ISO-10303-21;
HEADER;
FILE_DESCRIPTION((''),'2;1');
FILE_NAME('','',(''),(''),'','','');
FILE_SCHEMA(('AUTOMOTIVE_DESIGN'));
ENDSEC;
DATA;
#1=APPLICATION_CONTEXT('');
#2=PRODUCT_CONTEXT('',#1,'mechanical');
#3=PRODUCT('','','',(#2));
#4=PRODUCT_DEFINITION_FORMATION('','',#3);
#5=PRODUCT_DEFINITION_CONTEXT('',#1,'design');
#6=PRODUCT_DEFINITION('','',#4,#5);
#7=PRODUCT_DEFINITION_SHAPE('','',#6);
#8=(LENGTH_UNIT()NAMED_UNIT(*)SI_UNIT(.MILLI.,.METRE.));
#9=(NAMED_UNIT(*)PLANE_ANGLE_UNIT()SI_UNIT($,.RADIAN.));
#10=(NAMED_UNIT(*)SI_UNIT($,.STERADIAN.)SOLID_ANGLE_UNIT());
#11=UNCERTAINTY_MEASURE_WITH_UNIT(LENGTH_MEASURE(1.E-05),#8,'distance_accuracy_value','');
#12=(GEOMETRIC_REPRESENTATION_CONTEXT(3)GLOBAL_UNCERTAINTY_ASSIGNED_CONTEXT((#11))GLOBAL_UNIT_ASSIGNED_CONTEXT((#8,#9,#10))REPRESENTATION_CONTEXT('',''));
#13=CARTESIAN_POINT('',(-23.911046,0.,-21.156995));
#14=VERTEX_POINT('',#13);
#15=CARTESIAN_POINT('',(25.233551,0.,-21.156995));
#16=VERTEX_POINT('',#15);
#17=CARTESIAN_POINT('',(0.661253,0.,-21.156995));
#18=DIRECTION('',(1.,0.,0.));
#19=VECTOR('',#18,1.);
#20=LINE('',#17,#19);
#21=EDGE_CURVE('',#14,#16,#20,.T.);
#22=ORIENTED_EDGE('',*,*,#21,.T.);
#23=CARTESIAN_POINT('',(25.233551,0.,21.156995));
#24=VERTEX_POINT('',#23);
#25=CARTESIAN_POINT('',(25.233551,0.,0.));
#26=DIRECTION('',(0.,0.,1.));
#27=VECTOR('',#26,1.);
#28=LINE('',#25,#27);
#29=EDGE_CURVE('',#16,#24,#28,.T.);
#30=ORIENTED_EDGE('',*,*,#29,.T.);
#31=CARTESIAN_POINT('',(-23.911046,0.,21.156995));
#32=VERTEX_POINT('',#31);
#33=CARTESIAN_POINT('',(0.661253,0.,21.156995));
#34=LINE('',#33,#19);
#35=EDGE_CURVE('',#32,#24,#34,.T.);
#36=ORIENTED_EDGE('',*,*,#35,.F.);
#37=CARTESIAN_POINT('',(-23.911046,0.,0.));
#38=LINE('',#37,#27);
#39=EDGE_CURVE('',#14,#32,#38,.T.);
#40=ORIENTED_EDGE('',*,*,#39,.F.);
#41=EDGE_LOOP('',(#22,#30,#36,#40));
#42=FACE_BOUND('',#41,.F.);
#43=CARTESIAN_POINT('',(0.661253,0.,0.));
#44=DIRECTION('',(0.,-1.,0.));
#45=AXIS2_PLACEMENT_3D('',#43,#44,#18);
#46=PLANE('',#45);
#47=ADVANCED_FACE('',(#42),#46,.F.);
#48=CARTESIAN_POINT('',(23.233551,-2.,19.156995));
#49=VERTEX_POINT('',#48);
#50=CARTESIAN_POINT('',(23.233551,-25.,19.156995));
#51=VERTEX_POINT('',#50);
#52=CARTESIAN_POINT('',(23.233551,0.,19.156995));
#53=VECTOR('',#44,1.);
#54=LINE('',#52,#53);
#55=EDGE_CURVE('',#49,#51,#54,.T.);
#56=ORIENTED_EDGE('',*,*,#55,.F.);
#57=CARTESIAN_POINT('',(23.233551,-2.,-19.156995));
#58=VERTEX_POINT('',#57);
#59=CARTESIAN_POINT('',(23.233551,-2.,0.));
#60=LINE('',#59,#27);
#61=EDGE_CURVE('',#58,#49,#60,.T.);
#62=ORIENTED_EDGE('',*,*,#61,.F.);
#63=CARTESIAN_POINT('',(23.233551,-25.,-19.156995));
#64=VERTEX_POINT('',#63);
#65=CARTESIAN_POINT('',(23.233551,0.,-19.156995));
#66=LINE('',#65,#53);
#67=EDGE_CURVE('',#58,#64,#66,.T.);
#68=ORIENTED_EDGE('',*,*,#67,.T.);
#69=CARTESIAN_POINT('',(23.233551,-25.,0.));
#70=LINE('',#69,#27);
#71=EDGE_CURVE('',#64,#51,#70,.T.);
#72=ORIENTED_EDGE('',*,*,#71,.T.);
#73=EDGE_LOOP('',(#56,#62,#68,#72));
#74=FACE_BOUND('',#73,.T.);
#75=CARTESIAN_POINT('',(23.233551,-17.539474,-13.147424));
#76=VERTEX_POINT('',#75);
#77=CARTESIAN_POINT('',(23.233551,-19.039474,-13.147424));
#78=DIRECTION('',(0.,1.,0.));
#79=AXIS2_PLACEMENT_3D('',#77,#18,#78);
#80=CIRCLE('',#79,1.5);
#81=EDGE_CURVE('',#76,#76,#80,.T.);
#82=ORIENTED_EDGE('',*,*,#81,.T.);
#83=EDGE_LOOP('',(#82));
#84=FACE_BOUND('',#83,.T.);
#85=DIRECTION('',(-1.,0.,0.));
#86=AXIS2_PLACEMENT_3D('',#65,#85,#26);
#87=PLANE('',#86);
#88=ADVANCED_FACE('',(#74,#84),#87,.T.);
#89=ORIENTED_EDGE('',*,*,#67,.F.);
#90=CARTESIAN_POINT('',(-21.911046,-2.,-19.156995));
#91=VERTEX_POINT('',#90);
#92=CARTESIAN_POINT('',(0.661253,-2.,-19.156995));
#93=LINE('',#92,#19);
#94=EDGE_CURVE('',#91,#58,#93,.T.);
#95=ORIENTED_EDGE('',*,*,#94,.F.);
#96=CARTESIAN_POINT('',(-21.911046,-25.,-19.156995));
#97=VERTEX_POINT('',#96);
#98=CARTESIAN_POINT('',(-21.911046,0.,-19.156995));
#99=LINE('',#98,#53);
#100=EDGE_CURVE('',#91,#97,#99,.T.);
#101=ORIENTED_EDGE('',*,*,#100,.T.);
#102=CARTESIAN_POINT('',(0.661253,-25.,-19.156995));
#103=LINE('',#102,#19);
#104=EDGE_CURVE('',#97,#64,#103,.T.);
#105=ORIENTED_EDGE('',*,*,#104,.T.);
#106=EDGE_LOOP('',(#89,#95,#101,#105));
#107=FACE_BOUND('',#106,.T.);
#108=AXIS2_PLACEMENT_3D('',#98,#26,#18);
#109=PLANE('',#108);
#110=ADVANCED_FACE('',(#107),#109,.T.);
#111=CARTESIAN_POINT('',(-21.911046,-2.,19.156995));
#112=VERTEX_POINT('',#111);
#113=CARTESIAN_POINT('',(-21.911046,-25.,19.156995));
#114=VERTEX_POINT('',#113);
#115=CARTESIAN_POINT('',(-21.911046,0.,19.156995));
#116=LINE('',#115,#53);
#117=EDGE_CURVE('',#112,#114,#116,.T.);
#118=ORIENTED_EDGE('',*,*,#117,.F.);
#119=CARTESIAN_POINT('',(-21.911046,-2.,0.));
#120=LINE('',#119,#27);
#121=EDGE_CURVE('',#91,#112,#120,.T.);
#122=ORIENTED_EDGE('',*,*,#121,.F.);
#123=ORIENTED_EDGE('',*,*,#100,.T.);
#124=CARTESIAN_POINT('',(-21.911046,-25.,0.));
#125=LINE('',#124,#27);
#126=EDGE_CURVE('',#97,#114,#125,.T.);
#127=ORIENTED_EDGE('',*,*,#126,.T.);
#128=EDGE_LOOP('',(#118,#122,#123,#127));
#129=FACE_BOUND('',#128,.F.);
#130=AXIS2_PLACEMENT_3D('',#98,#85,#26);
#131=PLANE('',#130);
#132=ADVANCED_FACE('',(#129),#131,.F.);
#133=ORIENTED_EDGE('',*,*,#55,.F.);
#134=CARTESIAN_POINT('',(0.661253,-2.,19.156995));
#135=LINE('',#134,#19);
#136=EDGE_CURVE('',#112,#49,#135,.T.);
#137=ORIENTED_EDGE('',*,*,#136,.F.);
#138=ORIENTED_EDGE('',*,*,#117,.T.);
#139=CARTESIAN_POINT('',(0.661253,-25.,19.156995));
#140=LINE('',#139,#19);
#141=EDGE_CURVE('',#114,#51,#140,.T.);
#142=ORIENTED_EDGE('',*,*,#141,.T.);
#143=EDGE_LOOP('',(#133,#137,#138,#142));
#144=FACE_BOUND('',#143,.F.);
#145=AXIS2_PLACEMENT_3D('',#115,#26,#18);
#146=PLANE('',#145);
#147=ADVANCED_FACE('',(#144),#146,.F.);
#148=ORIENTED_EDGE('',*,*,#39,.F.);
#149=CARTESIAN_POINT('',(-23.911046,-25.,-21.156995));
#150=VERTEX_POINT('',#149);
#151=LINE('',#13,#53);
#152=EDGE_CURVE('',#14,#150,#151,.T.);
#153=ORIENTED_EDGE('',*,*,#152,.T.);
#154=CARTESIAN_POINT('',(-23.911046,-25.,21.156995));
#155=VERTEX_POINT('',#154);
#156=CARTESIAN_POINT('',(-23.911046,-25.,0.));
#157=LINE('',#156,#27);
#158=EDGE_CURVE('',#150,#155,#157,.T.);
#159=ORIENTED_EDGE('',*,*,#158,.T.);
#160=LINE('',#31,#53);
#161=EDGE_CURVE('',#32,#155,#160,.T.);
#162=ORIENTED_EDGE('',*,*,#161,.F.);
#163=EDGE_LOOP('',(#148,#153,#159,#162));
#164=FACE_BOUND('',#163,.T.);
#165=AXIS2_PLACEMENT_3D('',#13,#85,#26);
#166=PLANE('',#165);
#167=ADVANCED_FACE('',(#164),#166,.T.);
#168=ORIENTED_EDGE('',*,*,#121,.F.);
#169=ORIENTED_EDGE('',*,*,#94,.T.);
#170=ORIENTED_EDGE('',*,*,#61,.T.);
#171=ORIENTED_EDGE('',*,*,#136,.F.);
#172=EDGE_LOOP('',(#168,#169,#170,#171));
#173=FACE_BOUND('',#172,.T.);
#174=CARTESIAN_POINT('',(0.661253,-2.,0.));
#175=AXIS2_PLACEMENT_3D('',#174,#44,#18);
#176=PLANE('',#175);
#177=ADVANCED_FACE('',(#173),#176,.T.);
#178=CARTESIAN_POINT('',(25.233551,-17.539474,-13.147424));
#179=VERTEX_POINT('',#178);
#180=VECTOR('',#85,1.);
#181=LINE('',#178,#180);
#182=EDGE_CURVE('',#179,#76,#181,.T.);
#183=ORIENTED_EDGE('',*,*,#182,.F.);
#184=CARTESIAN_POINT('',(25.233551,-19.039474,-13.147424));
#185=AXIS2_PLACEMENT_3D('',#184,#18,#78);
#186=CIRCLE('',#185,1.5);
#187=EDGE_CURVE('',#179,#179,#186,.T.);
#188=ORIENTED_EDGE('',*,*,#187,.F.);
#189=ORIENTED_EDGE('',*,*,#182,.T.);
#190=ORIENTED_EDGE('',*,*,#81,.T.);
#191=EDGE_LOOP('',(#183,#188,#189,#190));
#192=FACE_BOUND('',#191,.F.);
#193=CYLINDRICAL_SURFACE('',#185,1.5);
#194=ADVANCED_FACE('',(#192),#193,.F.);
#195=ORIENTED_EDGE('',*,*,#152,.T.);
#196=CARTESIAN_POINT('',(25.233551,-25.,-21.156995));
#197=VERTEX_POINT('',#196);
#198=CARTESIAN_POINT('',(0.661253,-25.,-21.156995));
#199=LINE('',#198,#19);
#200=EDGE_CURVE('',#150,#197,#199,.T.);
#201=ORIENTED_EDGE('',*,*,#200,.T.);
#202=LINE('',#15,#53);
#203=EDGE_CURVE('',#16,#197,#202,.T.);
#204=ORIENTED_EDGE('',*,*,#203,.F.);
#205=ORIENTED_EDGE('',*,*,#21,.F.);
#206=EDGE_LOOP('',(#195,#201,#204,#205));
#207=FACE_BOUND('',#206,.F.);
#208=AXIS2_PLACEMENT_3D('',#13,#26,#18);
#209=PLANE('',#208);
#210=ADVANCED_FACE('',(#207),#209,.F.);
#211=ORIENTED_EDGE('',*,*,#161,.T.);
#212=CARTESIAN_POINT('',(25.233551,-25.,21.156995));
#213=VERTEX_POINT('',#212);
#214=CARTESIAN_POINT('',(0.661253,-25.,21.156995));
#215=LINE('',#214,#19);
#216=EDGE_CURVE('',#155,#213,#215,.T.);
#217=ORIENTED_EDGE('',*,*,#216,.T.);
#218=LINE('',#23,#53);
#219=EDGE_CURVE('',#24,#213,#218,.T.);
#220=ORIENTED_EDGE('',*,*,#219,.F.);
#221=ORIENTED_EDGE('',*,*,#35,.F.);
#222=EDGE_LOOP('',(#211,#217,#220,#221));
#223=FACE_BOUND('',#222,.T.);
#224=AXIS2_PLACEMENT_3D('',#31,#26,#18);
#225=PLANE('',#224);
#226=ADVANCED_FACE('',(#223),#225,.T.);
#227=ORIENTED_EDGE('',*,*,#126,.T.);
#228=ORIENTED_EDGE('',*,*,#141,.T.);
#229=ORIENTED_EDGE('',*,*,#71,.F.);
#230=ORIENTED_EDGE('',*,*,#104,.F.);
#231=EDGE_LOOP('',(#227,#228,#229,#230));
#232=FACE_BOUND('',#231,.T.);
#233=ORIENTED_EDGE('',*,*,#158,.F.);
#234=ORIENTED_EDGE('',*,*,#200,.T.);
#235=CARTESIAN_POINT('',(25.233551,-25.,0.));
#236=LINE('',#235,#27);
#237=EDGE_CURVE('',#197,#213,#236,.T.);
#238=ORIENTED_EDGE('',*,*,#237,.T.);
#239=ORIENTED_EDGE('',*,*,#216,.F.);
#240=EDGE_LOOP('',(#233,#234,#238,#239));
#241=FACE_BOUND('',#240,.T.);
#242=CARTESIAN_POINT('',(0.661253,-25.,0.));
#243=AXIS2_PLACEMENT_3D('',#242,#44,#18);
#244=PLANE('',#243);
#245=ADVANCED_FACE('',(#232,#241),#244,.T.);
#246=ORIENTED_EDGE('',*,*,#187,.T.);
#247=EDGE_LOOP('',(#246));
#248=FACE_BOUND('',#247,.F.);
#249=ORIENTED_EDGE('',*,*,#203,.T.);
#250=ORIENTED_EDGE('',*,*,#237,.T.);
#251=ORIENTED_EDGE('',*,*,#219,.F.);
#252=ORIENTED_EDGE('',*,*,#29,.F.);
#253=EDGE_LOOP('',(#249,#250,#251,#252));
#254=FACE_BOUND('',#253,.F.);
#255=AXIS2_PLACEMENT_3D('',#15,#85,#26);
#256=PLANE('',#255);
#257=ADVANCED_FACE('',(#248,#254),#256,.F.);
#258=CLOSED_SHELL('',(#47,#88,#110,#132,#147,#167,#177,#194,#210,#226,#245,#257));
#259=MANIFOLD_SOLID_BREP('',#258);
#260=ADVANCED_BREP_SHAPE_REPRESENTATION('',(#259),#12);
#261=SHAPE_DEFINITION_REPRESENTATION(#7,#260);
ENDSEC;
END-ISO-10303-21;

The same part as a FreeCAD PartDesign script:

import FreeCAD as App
import Part
import Sketcher
from FreeCAD import Vector

doc = App.newDocument("Part")
body = doc.addObject("PartDesign::Body", "Body")

sketch1 = body.newObject("Sketcher::SketchObject", "Sketch")
sketch1.AttachmentSupport = (doc.getObject("XZ_Plane"), [""])
sketch1.MapMode = "FlatFace"
sketch1.addGeometry([
    Part.LineSegment(Vector(-22, 19, 0), Vector(-22, -19, 0)),
    Part.LineSegment(Vector(-22, -19, 0), Vector(23, -19, 0)),
    Part.LineSegment(Vector(23, -19, 0), Vector(23, 19, 0)),
    Part.LineSegment(Vector(23, 19, 0), Vector(-22, 19, 0)),
], False)
sketch1.addConstraint([
    Sketcher.Constraint("Coincident", 0, 2, 1, 1),
    Sketcher.Constraint("Coincident", 1, 2, 2, 1),
    Sketcher.Constraint("Coincident", 2, 2, 3, 1),
    Sketcher.Constraint("Coincident", 3, 2, 0, 1),
    Sketcher.Constraint("Vertical", 0),
    Sketcher.Constraint("Horizontal", 1),
    Sketcher.Constraint("Vertical", 2),
    Sketcher.Constraint("Horizontal", 3),
    Sketcher.Constraint("DistanceY", 0, 2, 0, 1, 38.313989),
    Sketcher.Constraint("DistanceX", 1, 1, 1, 2, 45.144597),
    Sketcher.Constraint("DistanceX", -1, 1, 1, 2, 23.233551),
    Sketcher.Constraint("DistanceY", 0, 2, -1, 1, 19.156995),
])
pad1 = body.newObject("PartDesign::Pad", "Pad")
pad1.Profile = sketch1
pad1.Length = 2

sketch2 = body.newObject("Sketcher::SketchObject", "Sketch001")
sketch2.AttachmentSupport = (doc.getObject("XZ_Plane"), [""])
sketch2.MapMode = "FlatFace"
sketch2.addGeometry([
    Part.LineSegment(Vector(-24, 21, 0), Vector(-24, -21, 0)),
    Part.LineSegment(Vector(-24, -21, 0), Vector(25, -21, 0)),
    Part.LineSegment(Vector(25, -21, 0), Vector(25, 21, 0)),
    Part.LineSegment(Vector(25, 21, 0), Vector(-24, 21, 0)),
    Part.LineSegment(Vector(23, -19, 0), Vector(-22, -19, 0)),
    Part.LineSegment(Vector(-22, -19, 0), Vector(-22, 19, 0)),
    Part.LineSegment(Vector(-22, 19, 0), Vector(23, 19, 0)),
    Part.LineSegment(Vector(23, 19, 0), Vector(23, -19, 0)),
], False)
sketch2.addConstraint([
    Sketcher.Constraint("Coincident", 0, 2, 1, 1),
    Sketcher.Constraint("Coincident", 1, 2, 2, 1),
    Sketcher.Constraint("Coincident", 2, 2, 3, 1),
    Sketcher.Constraint("Coincident", 3, 2, 0, 1),
    Sketcher.Constraint("Coincident", 4, 2, 5, 1),
    Sketcher.Constraint("Coincident", 5, 2, 6, 1),
    Sketcher.Constraint("Coincident", 6, 2, 7, 1),
    Sketcher.Constraint("Coincident", 7, 2, 4, 1),
    Sketcher.Constraint("Vertical", 0),
    Sketcher.Constraint("Horizontal", 1),
    Sketcher.Constraint("Vertical", 2),
    Sketcher.Constraint("Horizontal", 3),
    Sketcher.Constraint("Horizontal", 4),
    Sketcher.Constraint("Vertical", 5),
    Sketcher.Constraint("Horizontal", 6),
    Sketcher.Constraint("Vertical", 7),
    Sketcher.Constraint("DistanceX", 0, 2, 4, 2, 2.0),
    Sketcher.Constraint("DistanceY", 0, 2, 4, 2, 2.0),
    Sketcher.Constraint("DistanceY", 5, 2, 3, 2, 2.0),
    Sketcher.Constraint("DistanceX", 6, 2, 2, 2, 2.0),
    Sketcher.Constraint("DistanceY", 0, 2, 0, 1, 42.313989),
    Sketcher.Constraint("DistanceX", 1, 1, 1, 2, 49.144597),
    Sketcher.Constraint("DistanceX", -1, 1, 1, 2, 25.233551),
    Sketcher.Constraint("DistanceY", 0, 2, -1, 1, 21.156995),
])
pad2 = body.newObject("PartDesign::Pad", "Pad001")
pad2.Profile = sketch2
pad2.Length = 25

sketch3 = body.newObject("Sketcher::SketchObject", "Sketch002")
sketch3.AttachmentSupport = (doc.getObject("YZ_Plane"), [""])
sketch3.MapMode = "FlatFace"
sketch3.AttachmentOffset = App.Placement(Vector(0, 0, 25.233551), App.Rotation())
sketch3.addGeometry(Part.Circle(Vector(-19, -13.1, 0), Vector(0, 0, 1), 1.5), False)
sketch3.addConstraint([
    Sketcher.Constraint("Diameter", 0, 3.0),
    Sketcher.Constraint("DistanceX", 0, 3, -1, 1, 19.039474),
    Sketcher.Constraint("DistanceY", 0, 3, -1, 1, 13.147424),
])
pocket1 = body.newObject("PartDesign::Pocket", "Pocket")
pocket1.Profile = sketch3
pocket1.Length = 2

doc.recompute()
